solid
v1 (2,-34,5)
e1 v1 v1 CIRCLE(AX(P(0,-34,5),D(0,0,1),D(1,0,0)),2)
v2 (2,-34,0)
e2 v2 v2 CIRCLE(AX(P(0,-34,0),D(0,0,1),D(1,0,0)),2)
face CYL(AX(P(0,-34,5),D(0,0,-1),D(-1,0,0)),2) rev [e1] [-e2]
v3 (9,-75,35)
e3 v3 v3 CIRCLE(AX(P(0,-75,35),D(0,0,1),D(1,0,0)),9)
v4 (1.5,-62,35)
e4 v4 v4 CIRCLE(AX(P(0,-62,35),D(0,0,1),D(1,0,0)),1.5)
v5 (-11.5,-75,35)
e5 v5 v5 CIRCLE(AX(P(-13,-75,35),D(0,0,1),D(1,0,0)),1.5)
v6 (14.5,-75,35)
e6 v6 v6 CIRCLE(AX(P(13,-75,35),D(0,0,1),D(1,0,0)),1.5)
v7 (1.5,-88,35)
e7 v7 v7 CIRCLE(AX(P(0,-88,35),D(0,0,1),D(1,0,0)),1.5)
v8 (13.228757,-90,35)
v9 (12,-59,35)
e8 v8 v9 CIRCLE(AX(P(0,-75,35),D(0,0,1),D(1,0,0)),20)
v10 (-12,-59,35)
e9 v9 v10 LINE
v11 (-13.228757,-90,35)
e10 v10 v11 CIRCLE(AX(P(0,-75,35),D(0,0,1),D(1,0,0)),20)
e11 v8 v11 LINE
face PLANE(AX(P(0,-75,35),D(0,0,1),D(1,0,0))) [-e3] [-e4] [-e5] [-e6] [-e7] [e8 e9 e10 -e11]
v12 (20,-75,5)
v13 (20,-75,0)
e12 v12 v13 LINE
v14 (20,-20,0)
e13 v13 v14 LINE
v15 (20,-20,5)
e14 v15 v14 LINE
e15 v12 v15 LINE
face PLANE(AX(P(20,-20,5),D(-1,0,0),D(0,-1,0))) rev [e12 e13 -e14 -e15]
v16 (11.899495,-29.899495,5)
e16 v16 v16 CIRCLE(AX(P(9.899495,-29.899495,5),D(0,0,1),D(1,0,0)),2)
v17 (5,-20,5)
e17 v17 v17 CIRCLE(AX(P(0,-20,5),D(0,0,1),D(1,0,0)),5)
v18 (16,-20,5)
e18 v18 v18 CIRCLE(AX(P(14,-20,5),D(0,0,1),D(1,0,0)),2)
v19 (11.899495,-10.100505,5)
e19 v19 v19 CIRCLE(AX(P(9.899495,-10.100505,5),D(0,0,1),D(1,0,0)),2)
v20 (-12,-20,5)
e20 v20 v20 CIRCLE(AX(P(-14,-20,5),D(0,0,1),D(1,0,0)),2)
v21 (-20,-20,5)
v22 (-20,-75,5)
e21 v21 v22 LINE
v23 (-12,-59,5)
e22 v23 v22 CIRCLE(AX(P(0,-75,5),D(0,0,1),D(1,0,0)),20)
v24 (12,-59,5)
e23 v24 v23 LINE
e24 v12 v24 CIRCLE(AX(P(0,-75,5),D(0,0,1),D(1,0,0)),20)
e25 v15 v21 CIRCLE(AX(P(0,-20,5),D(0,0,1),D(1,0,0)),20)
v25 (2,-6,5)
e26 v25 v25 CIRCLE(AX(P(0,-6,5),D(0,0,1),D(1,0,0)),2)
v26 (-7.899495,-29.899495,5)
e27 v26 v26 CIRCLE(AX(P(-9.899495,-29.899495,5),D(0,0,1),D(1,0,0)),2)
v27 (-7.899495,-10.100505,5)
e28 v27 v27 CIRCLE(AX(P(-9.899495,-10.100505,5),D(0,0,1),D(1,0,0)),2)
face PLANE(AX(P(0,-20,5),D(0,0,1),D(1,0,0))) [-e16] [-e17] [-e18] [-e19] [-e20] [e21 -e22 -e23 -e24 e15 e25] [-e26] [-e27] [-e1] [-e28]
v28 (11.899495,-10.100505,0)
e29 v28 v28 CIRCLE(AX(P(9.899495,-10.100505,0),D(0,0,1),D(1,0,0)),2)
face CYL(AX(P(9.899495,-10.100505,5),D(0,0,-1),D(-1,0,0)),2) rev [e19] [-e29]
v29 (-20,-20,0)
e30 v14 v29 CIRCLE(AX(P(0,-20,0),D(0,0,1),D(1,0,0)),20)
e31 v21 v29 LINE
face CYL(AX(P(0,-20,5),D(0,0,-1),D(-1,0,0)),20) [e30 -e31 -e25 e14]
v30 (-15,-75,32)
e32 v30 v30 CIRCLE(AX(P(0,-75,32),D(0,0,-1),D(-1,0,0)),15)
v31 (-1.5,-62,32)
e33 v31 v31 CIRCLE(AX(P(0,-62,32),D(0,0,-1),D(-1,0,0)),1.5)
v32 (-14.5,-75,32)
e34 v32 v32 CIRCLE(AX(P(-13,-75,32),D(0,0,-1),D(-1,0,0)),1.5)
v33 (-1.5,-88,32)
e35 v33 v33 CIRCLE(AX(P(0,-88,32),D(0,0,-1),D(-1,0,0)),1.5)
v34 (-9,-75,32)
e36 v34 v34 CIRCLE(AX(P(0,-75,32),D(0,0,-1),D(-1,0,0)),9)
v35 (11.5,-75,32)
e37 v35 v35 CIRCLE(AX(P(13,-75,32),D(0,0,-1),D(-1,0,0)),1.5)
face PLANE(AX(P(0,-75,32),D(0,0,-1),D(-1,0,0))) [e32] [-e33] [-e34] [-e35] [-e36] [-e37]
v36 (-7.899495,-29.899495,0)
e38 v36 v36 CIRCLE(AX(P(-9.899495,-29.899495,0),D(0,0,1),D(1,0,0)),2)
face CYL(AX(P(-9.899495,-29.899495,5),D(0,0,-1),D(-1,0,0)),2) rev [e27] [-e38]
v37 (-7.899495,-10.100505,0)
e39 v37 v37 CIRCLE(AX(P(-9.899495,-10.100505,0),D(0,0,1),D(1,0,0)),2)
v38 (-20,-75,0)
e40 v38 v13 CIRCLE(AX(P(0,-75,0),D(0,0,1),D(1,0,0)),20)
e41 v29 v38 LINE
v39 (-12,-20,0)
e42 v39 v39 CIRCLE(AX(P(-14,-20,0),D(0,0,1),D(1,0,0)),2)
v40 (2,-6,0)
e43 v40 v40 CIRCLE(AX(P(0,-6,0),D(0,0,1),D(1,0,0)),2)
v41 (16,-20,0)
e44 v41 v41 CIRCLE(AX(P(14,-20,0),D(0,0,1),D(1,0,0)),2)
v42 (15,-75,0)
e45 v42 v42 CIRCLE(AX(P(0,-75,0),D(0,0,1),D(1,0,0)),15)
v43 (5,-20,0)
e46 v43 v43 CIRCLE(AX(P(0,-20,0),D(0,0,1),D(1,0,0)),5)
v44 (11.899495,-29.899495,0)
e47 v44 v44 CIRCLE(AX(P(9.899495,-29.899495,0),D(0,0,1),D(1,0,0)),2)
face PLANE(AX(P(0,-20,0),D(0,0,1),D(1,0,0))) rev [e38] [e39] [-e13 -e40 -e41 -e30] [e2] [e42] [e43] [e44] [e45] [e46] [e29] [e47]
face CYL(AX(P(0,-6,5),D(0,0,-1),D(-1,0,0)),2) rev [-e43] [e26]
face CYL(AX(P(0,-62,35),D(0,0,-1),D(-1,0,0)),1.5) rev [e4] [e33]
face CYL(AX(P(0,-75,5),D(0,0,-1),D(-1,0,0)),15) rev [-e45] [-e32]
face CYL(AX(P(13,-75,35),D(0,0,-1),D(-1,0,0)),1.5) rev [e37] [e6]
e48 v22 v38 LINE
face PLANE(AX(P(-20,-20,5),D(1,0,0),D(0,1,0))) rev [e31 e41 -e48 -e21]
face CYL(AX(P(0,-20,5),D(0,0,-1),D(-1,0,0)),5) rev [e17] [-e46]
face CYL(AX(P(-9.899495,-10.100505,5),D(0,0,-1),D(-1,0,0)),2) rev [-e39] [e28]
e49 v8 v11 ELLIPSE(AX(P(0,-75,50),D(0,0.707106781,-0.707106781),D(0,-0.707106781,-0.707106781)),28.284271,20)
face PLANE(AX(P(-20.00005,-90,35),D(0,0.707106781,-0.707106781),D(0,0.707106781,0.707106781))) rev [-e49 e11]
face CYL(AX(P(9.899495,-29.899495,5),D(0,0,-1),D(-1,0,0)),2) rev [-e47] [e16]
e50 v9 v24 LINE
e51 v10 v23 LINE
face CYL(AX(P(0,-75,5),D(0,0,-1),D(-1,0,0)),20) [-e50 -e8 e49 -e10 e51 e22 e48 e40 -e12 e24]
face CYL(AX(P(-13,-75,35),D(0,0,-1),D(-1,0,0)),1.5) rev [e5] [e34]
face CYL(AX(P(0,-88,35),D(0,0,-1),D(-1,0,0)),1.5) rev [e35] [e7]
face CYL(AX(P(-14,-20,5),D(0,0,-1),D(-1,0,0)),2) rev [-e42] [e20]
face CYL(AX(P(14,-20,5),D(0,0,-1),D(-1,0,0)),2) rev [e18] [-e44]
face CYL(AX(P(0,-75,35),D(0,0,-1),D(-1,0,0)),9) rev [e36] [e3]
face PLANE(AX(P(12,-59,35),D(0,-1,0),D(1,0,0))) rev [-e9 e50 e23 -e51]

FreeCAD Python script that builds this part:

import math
import FreeCAD as App
import Part
import Sketcher
from FreeCAD import Vector
Q = App.Units.Quantity


def add_polygon(sketch, points):
    """Adds a closed chain of lines whose ends are joined by coincident constraints."""
    first, n = sketch.GeometryCount, len(points)
    for a, b in zip(points, points[1:] + points[:1]):
        sketch.addGeometry(Part.LineSegment(App.Vector(*a, 0), App.Vector(*b, 0)), False)
    for i in range(n):
        sketch.addConstraint(Sketcher.Constraint("Coincident", first + i, 2, first + (i + 1) % n, 1))

doc = App.newDocument("Part")
body = doc.addObject("PartDesign::Body", "Body")

sketch1 = body.newObject("Sketcher::SketchObject", "Sketch")
sketch1.AttachmentSupport = (doc.getObject("XY_Plane"), [""])
sketch1.MapMode = "FlatFace"
sketch1.addGeometry(Part.LineSegment(Vector(20, -75, 0), Vector(20, -20, 0)), False)
sketch1.addGeometry(Part.ArcOfCircle(Part.Circle(Vector(0, -20, 0), Vector(0, 0, 1), 20), math.radians(0), math.radians(180)), False)
sketch1.addGeometry(Part.LineSegment(Vector(-20, -20, 0), Vector(-20, -75, 0)), False)
sketch1.addGeometry(Part.ArcOfCircle(Part.Circle(Vector(0, -75, 0), Vector(0, 0, 1), 20), math.radians(180), math.radians(360)), False)
sketch1.addGeometry(Part.Circle(Vector(0, -75, 0), Vector(0, 0, 1), 15), False)
sketch1.addGeometry(Part.Circle(Vector(9.9, -29.9, 0), Vector(0, 0, 1), 2), False)
sketch1.addGeometry(Part.Circle(Vector(14, -20, 0), Vector(0, 0, 1), 2), False)
sketch1.addGeometry(Part.Circle(Vector(9.9, -10.1, 0), Vector(0, 0, 1), 2), False)
sketch1.addGeometry(Part.Circle(Vector(0, -34, 0), Vector(0, 0, 1), 2), False)
sketch1.addGeometry(Part.Circle(Vector(-9.9, -29.9, 0), Vector(0, 0, 1), 2), False)
sketch1.addGeometry(Part.Circle(Vector(0, -20, 0), Vector(0, 0, 1), 5), False)
sketch1.addGeometry(Part.Circle(Vector(0, -6, 0), Vector(0, 0, 1), 2), False)
sketch1.addGeometry(Part.Circle(Vector(-14, -20, 0), Vector(0, 0, 1), 2), False)
sketch1.addGeometry(Part.Circle(Vector(-9.9, -10.1, 0), Vector(0, 0, 1), 2), False)
sketch1.addConstraint(Sketcher.Constraint("Tangent", 0, 2, 1, 1))
sketch1.addConstraint(Sketcher.Constraint("Tangent", 1, 2, 2, 1))
sketch1.addConstraint(Sketcher.Constraint("Tangent", 2, 2, 3, 1))
sketch1.addConstraint(Sketcher.Constraint("Tangent", 3, 2, 0, 1))
sketch1.addConstraint(Sketcher.Constraint("Vertical", 0))
sketch1.addConstraint(Sketcher.Constraint("Vertical", 2))
sketch1.addConstraint(Sketcher.Constraint("Coincident", 4, 3, 3, 3))
sketch1.addConstraint(Sketcher.Constraint("Coincident", 10, 3, 1, 3))
sketch1.addConstraint(Sketcher.Constraint("Equal", 5, 6))
sketch1.addConstraint(Sketcher.Constraint("Equal", 6, 7))
sketch1.addConstraint(Sketcher.Constraint("Equal", 7, 8))
sketch1.addConstraint(Sketcher.Constraint("Equal", 8, 9))
sketch1.addConstraint(Sketcher.Constraint("Equal", 9, 11))
sketch1.addConstraint(Sketcher.Constraint("Equal", 11, 12))
sketch1.addConstraint(Sketcher.Constraint("Equal", 12, 13))
sketch1.addConstraint(Sketcher.Constraint("Symmetric", 5, 3, 9, 3, -2))
sketch1.addConstraint(Sketcher.Constraint("Symmetric", 6, 3, 12, 3, -2))
sketch1.addConstraint(Sketcher.Constraint("Symmetric", 7, 3, 13, 3, -2))
sketch1.addConstraint(Sketcher.Constraint("PointOnObject", 1, 3, -2))
sketch1.addConstraint(Sketcher.Constraint("PointOnObject", 8, 3, -2))
sketch1.addConstraint(Sketcher.Constraint("PointOnObject", 11, 3, -2))
sketch1.addConstraint(Sketcher.Constraint("Horizontal", 1, 3, 6, 3))
sketch1.addConstraint(Sketcher.Constraint("Vertical", 5, 3, 7, 3))
sketch1.addConstraint(Sketcher.Constraint("Diameter", 4, Q("30 mm")))
sketch1.addConstraint(Sketcher.Constraint("Diameter", 5, Q("4 mm")))
sketch1.addConstraint(Sketcher.Constraint("Diameter", 10, Q("10 mm")))
sketch1.addConstraint(Sketcher.Constraint("Radius", 1, Q("20 mm")))
sketch1.addConstraint(Sketcher.Constraint("DistanceY", 0, 1, 0, 2, Q("55 mm")))
sketch1.addConstraint(Sketcher.Constraint("DistanceY", 1, 3, -1, 1, Q("20 mm")))
sketch1.addConstraint(Sketcher.Constraint("DistanceX", -1, 1, 6, 3, Q("14 mm")))
sketch1.addConstraint(Sketcher.Constraint("DistanceY", 8, 3, -1, 1, Q("34 mm")))
sketch1.addConstraint(Sketcher.Constraint("DistanceY", 11, 3, -1, 1, Q("6 mm")))
sketch1.addConstraint(Sketcher.Constraint("DistanceY", 5, 3, 7, 3, Q("19.79899 mm")))
sketch1.addConstraint(Sketcher.Constraint("DistanceX", 9, 3, 5, 3, Q("19.79899 mm")))
sketch1.addConstraint(Sketcher.Constraint("DistanceY", 5, 3, -1, 1, Q("29.899495 mm")))
pad1 = body.newObject("PartDesign::Pad", "Pad")
pad1.Profile = sketch1
pad1.Length = 5

sketch2 = body.newObject("Sketcher::SketchObject", "Sketch001")
sketch2.AttachmentSupport = (doc.getObject("XY_Plane"), [""])
sketch2.MapMode = "FlatFace"
sketch2.AttachmentOffset = App.Placement(Vector(0, 0, 5), App.Rotation())
sketch2.addGeometry(Part.LineSegment(Vector(12, -59, 0), Vector(-12, -59, 0)), False)
sketch2.addGeometry(Part.ArcOfCircle(Part.Circle(Vector(0, -75, 0), Vector(0, 0, 1), 20), math.radians(127), math.radians(413)), False)
sketch2.addGeometry(Part.Circle(Vector(0, -88, 0), Vector(0, 0, 1), 1.5), False)
sketch2.addGeometry(Part.Circle(Vector(-13, -75, 0), Vector(0, 0, 1), 1.5), False)
sketch2.addGeometry(Part.Circle(Vector(0, -75, 0), Vector(0, 0, 1), 9), False)
sketch2.addGeometry(Part.Circle(Vector(13, -75, 0), Vector(0, 0, 1), 1.5), False)
sketch2.addGeometry(Part.Circle(Vector(0, -62, 0), Vector(0, 0, 1), 1.5), False)
sketch2.addConstraint(Sketcher.Constraint("Coincident", 0, 1, 1, 2))
sketch2.addConstraint(Sketcher.Constraint("Coincident", 1, 1, 0, 2))
sketch2.addConstraint(Sketcher.Constraint("Horizontal", 0))
sketch2.addConstraint(Sketcher.Constraint("Coincident", 4, 3, 1, 3))
sketch2.addConstraint(Sketcher.Constraint("Equal", 2, 3))
sketch2.addConstraint(Sketcher.Constraint("Equal", 3, 5))
sketch2.addConstraint(Sketcher.Constraint("Equal", 5, 6))
sketch2.addConstraint(Sketcher.Constraint("Symmetric", 3, 3, 5, 3, -2))
sketch2.addConstraint(Sketcher.Constraint("PointOnObject", 1, 3, -2))
sketch2.addConstraint(Sketcher.Constraint("PointOnObject", 2, 3, -2))
sketch2.addConstraint(Sketcher.Constraint("PointOnObject", 6, 3, -2))
sketch2.addConstraint(Sketcher.Constraint("Horizontal", 1, 3, 3, 3))
sketch2.addConstraint(Sketcher.Constraint("Diameter", 2, Q("3 mm")))
sketch2.addConstraint(Sketcher.Constraint("Diameter", 4, Q("18 mm")))
sketch2.addConstraint(Sketcher.Constraint("Radius", 1, Q("20 mm")))
sketch2.addConstraint(Sketcher.Constraint("DistanceX", 0, 2, 0, 1, Q("24 mm")))
sketch2.addConstraint(Sketcher.Constraint("DistanceY", 1, 3, -1, 1, Q("75 mm")))
sketch2.addConstraint(Sketcher.Constraint("DistanceY", 2, 3, -1, 1, Q("88 mm")))
sketch2.addConstraint(Sketcher.Constraint("DistanceX", 3, 3, -1, 1, Q("13 mm")))
sketch2.addConstraint(Sketcher.Constraint("DistanceY", 6, 3, -1, 1, Q("62 mm")))
pad2 = body.newObject("PartDesign::Pad", "Pad001")
pad2.Profile = sketch2
pad2.Length = 30

sketch3 = body.newObject("Sketcher::SketchObject", "Sketch002")
sketch3.AttachmentSupport = (doc.getObject("XY_Plane"), [""])
sketch3.MapMode = "FlatFace"
sketch3.AttachmentOffset = App.Placement(Vector(0, 0, 5), App.Rotation())
sketch3.addGeometry(Part.Circle(Vector(0, -75, 0), Vector(0, 0, 1), 15), False)
sketch3.addConstraint(Sketcher.Constraint("PointOnObject", 0, 3, -2))
sketch3.addConstraint(Sketcher.Constraint("Diameter", 0, Q("30 mm")))
sketch3.addConstraint(Sketcher.Constraint("DistanceY", 0, 3, -1, 1, Q("75 mm")))
pocket1 = body.newObject("PartDesign::Pocket", "Pocket")
pocket1.Profile = sketch3
pocket1.Length = 27
pocket1.Reversed = True

sketch4 = body.newObject("Sketcher::SketchObject", "Sketch003")
sketch4.AttachmentSupport = (doc.getObject("YZ_Plane"), [""])
sketch4.MapMode = "FlatFace"
add_polygon(sketch4, [(-95, 35), (-95, 30), (-90, 35)])
sketch4.addConstraint(Sketcher.Constraint("Vertical", 0))
sketch4.addConstraint(Sketcher.Constraint("Horizontal", 2))
sketch4.addConstraint(Sketcher.Constraint("Equal", 2, 0))
sketch4.addConstraint(Sketcher.Constraint("DistanceX", 2, 2, 2, 1, Q("5 mm")))
sketch4.addConstraint(Sketcher.Constraint("DistanceX", 0, 2, -1, 1, Q("95 mm")))
sketch4.addConstraint(Sketcher.Constraint("DistanceY", -1, 1, 0, 2, Q("30 mm")))
pocket2 = body.newObject("PartDesign::Pocket", "Pocket001")
pocket2.Profile = sketch4
pocket2.Type = "ThroughAll"
pocket2.Midplane = True

doc.recompute()
